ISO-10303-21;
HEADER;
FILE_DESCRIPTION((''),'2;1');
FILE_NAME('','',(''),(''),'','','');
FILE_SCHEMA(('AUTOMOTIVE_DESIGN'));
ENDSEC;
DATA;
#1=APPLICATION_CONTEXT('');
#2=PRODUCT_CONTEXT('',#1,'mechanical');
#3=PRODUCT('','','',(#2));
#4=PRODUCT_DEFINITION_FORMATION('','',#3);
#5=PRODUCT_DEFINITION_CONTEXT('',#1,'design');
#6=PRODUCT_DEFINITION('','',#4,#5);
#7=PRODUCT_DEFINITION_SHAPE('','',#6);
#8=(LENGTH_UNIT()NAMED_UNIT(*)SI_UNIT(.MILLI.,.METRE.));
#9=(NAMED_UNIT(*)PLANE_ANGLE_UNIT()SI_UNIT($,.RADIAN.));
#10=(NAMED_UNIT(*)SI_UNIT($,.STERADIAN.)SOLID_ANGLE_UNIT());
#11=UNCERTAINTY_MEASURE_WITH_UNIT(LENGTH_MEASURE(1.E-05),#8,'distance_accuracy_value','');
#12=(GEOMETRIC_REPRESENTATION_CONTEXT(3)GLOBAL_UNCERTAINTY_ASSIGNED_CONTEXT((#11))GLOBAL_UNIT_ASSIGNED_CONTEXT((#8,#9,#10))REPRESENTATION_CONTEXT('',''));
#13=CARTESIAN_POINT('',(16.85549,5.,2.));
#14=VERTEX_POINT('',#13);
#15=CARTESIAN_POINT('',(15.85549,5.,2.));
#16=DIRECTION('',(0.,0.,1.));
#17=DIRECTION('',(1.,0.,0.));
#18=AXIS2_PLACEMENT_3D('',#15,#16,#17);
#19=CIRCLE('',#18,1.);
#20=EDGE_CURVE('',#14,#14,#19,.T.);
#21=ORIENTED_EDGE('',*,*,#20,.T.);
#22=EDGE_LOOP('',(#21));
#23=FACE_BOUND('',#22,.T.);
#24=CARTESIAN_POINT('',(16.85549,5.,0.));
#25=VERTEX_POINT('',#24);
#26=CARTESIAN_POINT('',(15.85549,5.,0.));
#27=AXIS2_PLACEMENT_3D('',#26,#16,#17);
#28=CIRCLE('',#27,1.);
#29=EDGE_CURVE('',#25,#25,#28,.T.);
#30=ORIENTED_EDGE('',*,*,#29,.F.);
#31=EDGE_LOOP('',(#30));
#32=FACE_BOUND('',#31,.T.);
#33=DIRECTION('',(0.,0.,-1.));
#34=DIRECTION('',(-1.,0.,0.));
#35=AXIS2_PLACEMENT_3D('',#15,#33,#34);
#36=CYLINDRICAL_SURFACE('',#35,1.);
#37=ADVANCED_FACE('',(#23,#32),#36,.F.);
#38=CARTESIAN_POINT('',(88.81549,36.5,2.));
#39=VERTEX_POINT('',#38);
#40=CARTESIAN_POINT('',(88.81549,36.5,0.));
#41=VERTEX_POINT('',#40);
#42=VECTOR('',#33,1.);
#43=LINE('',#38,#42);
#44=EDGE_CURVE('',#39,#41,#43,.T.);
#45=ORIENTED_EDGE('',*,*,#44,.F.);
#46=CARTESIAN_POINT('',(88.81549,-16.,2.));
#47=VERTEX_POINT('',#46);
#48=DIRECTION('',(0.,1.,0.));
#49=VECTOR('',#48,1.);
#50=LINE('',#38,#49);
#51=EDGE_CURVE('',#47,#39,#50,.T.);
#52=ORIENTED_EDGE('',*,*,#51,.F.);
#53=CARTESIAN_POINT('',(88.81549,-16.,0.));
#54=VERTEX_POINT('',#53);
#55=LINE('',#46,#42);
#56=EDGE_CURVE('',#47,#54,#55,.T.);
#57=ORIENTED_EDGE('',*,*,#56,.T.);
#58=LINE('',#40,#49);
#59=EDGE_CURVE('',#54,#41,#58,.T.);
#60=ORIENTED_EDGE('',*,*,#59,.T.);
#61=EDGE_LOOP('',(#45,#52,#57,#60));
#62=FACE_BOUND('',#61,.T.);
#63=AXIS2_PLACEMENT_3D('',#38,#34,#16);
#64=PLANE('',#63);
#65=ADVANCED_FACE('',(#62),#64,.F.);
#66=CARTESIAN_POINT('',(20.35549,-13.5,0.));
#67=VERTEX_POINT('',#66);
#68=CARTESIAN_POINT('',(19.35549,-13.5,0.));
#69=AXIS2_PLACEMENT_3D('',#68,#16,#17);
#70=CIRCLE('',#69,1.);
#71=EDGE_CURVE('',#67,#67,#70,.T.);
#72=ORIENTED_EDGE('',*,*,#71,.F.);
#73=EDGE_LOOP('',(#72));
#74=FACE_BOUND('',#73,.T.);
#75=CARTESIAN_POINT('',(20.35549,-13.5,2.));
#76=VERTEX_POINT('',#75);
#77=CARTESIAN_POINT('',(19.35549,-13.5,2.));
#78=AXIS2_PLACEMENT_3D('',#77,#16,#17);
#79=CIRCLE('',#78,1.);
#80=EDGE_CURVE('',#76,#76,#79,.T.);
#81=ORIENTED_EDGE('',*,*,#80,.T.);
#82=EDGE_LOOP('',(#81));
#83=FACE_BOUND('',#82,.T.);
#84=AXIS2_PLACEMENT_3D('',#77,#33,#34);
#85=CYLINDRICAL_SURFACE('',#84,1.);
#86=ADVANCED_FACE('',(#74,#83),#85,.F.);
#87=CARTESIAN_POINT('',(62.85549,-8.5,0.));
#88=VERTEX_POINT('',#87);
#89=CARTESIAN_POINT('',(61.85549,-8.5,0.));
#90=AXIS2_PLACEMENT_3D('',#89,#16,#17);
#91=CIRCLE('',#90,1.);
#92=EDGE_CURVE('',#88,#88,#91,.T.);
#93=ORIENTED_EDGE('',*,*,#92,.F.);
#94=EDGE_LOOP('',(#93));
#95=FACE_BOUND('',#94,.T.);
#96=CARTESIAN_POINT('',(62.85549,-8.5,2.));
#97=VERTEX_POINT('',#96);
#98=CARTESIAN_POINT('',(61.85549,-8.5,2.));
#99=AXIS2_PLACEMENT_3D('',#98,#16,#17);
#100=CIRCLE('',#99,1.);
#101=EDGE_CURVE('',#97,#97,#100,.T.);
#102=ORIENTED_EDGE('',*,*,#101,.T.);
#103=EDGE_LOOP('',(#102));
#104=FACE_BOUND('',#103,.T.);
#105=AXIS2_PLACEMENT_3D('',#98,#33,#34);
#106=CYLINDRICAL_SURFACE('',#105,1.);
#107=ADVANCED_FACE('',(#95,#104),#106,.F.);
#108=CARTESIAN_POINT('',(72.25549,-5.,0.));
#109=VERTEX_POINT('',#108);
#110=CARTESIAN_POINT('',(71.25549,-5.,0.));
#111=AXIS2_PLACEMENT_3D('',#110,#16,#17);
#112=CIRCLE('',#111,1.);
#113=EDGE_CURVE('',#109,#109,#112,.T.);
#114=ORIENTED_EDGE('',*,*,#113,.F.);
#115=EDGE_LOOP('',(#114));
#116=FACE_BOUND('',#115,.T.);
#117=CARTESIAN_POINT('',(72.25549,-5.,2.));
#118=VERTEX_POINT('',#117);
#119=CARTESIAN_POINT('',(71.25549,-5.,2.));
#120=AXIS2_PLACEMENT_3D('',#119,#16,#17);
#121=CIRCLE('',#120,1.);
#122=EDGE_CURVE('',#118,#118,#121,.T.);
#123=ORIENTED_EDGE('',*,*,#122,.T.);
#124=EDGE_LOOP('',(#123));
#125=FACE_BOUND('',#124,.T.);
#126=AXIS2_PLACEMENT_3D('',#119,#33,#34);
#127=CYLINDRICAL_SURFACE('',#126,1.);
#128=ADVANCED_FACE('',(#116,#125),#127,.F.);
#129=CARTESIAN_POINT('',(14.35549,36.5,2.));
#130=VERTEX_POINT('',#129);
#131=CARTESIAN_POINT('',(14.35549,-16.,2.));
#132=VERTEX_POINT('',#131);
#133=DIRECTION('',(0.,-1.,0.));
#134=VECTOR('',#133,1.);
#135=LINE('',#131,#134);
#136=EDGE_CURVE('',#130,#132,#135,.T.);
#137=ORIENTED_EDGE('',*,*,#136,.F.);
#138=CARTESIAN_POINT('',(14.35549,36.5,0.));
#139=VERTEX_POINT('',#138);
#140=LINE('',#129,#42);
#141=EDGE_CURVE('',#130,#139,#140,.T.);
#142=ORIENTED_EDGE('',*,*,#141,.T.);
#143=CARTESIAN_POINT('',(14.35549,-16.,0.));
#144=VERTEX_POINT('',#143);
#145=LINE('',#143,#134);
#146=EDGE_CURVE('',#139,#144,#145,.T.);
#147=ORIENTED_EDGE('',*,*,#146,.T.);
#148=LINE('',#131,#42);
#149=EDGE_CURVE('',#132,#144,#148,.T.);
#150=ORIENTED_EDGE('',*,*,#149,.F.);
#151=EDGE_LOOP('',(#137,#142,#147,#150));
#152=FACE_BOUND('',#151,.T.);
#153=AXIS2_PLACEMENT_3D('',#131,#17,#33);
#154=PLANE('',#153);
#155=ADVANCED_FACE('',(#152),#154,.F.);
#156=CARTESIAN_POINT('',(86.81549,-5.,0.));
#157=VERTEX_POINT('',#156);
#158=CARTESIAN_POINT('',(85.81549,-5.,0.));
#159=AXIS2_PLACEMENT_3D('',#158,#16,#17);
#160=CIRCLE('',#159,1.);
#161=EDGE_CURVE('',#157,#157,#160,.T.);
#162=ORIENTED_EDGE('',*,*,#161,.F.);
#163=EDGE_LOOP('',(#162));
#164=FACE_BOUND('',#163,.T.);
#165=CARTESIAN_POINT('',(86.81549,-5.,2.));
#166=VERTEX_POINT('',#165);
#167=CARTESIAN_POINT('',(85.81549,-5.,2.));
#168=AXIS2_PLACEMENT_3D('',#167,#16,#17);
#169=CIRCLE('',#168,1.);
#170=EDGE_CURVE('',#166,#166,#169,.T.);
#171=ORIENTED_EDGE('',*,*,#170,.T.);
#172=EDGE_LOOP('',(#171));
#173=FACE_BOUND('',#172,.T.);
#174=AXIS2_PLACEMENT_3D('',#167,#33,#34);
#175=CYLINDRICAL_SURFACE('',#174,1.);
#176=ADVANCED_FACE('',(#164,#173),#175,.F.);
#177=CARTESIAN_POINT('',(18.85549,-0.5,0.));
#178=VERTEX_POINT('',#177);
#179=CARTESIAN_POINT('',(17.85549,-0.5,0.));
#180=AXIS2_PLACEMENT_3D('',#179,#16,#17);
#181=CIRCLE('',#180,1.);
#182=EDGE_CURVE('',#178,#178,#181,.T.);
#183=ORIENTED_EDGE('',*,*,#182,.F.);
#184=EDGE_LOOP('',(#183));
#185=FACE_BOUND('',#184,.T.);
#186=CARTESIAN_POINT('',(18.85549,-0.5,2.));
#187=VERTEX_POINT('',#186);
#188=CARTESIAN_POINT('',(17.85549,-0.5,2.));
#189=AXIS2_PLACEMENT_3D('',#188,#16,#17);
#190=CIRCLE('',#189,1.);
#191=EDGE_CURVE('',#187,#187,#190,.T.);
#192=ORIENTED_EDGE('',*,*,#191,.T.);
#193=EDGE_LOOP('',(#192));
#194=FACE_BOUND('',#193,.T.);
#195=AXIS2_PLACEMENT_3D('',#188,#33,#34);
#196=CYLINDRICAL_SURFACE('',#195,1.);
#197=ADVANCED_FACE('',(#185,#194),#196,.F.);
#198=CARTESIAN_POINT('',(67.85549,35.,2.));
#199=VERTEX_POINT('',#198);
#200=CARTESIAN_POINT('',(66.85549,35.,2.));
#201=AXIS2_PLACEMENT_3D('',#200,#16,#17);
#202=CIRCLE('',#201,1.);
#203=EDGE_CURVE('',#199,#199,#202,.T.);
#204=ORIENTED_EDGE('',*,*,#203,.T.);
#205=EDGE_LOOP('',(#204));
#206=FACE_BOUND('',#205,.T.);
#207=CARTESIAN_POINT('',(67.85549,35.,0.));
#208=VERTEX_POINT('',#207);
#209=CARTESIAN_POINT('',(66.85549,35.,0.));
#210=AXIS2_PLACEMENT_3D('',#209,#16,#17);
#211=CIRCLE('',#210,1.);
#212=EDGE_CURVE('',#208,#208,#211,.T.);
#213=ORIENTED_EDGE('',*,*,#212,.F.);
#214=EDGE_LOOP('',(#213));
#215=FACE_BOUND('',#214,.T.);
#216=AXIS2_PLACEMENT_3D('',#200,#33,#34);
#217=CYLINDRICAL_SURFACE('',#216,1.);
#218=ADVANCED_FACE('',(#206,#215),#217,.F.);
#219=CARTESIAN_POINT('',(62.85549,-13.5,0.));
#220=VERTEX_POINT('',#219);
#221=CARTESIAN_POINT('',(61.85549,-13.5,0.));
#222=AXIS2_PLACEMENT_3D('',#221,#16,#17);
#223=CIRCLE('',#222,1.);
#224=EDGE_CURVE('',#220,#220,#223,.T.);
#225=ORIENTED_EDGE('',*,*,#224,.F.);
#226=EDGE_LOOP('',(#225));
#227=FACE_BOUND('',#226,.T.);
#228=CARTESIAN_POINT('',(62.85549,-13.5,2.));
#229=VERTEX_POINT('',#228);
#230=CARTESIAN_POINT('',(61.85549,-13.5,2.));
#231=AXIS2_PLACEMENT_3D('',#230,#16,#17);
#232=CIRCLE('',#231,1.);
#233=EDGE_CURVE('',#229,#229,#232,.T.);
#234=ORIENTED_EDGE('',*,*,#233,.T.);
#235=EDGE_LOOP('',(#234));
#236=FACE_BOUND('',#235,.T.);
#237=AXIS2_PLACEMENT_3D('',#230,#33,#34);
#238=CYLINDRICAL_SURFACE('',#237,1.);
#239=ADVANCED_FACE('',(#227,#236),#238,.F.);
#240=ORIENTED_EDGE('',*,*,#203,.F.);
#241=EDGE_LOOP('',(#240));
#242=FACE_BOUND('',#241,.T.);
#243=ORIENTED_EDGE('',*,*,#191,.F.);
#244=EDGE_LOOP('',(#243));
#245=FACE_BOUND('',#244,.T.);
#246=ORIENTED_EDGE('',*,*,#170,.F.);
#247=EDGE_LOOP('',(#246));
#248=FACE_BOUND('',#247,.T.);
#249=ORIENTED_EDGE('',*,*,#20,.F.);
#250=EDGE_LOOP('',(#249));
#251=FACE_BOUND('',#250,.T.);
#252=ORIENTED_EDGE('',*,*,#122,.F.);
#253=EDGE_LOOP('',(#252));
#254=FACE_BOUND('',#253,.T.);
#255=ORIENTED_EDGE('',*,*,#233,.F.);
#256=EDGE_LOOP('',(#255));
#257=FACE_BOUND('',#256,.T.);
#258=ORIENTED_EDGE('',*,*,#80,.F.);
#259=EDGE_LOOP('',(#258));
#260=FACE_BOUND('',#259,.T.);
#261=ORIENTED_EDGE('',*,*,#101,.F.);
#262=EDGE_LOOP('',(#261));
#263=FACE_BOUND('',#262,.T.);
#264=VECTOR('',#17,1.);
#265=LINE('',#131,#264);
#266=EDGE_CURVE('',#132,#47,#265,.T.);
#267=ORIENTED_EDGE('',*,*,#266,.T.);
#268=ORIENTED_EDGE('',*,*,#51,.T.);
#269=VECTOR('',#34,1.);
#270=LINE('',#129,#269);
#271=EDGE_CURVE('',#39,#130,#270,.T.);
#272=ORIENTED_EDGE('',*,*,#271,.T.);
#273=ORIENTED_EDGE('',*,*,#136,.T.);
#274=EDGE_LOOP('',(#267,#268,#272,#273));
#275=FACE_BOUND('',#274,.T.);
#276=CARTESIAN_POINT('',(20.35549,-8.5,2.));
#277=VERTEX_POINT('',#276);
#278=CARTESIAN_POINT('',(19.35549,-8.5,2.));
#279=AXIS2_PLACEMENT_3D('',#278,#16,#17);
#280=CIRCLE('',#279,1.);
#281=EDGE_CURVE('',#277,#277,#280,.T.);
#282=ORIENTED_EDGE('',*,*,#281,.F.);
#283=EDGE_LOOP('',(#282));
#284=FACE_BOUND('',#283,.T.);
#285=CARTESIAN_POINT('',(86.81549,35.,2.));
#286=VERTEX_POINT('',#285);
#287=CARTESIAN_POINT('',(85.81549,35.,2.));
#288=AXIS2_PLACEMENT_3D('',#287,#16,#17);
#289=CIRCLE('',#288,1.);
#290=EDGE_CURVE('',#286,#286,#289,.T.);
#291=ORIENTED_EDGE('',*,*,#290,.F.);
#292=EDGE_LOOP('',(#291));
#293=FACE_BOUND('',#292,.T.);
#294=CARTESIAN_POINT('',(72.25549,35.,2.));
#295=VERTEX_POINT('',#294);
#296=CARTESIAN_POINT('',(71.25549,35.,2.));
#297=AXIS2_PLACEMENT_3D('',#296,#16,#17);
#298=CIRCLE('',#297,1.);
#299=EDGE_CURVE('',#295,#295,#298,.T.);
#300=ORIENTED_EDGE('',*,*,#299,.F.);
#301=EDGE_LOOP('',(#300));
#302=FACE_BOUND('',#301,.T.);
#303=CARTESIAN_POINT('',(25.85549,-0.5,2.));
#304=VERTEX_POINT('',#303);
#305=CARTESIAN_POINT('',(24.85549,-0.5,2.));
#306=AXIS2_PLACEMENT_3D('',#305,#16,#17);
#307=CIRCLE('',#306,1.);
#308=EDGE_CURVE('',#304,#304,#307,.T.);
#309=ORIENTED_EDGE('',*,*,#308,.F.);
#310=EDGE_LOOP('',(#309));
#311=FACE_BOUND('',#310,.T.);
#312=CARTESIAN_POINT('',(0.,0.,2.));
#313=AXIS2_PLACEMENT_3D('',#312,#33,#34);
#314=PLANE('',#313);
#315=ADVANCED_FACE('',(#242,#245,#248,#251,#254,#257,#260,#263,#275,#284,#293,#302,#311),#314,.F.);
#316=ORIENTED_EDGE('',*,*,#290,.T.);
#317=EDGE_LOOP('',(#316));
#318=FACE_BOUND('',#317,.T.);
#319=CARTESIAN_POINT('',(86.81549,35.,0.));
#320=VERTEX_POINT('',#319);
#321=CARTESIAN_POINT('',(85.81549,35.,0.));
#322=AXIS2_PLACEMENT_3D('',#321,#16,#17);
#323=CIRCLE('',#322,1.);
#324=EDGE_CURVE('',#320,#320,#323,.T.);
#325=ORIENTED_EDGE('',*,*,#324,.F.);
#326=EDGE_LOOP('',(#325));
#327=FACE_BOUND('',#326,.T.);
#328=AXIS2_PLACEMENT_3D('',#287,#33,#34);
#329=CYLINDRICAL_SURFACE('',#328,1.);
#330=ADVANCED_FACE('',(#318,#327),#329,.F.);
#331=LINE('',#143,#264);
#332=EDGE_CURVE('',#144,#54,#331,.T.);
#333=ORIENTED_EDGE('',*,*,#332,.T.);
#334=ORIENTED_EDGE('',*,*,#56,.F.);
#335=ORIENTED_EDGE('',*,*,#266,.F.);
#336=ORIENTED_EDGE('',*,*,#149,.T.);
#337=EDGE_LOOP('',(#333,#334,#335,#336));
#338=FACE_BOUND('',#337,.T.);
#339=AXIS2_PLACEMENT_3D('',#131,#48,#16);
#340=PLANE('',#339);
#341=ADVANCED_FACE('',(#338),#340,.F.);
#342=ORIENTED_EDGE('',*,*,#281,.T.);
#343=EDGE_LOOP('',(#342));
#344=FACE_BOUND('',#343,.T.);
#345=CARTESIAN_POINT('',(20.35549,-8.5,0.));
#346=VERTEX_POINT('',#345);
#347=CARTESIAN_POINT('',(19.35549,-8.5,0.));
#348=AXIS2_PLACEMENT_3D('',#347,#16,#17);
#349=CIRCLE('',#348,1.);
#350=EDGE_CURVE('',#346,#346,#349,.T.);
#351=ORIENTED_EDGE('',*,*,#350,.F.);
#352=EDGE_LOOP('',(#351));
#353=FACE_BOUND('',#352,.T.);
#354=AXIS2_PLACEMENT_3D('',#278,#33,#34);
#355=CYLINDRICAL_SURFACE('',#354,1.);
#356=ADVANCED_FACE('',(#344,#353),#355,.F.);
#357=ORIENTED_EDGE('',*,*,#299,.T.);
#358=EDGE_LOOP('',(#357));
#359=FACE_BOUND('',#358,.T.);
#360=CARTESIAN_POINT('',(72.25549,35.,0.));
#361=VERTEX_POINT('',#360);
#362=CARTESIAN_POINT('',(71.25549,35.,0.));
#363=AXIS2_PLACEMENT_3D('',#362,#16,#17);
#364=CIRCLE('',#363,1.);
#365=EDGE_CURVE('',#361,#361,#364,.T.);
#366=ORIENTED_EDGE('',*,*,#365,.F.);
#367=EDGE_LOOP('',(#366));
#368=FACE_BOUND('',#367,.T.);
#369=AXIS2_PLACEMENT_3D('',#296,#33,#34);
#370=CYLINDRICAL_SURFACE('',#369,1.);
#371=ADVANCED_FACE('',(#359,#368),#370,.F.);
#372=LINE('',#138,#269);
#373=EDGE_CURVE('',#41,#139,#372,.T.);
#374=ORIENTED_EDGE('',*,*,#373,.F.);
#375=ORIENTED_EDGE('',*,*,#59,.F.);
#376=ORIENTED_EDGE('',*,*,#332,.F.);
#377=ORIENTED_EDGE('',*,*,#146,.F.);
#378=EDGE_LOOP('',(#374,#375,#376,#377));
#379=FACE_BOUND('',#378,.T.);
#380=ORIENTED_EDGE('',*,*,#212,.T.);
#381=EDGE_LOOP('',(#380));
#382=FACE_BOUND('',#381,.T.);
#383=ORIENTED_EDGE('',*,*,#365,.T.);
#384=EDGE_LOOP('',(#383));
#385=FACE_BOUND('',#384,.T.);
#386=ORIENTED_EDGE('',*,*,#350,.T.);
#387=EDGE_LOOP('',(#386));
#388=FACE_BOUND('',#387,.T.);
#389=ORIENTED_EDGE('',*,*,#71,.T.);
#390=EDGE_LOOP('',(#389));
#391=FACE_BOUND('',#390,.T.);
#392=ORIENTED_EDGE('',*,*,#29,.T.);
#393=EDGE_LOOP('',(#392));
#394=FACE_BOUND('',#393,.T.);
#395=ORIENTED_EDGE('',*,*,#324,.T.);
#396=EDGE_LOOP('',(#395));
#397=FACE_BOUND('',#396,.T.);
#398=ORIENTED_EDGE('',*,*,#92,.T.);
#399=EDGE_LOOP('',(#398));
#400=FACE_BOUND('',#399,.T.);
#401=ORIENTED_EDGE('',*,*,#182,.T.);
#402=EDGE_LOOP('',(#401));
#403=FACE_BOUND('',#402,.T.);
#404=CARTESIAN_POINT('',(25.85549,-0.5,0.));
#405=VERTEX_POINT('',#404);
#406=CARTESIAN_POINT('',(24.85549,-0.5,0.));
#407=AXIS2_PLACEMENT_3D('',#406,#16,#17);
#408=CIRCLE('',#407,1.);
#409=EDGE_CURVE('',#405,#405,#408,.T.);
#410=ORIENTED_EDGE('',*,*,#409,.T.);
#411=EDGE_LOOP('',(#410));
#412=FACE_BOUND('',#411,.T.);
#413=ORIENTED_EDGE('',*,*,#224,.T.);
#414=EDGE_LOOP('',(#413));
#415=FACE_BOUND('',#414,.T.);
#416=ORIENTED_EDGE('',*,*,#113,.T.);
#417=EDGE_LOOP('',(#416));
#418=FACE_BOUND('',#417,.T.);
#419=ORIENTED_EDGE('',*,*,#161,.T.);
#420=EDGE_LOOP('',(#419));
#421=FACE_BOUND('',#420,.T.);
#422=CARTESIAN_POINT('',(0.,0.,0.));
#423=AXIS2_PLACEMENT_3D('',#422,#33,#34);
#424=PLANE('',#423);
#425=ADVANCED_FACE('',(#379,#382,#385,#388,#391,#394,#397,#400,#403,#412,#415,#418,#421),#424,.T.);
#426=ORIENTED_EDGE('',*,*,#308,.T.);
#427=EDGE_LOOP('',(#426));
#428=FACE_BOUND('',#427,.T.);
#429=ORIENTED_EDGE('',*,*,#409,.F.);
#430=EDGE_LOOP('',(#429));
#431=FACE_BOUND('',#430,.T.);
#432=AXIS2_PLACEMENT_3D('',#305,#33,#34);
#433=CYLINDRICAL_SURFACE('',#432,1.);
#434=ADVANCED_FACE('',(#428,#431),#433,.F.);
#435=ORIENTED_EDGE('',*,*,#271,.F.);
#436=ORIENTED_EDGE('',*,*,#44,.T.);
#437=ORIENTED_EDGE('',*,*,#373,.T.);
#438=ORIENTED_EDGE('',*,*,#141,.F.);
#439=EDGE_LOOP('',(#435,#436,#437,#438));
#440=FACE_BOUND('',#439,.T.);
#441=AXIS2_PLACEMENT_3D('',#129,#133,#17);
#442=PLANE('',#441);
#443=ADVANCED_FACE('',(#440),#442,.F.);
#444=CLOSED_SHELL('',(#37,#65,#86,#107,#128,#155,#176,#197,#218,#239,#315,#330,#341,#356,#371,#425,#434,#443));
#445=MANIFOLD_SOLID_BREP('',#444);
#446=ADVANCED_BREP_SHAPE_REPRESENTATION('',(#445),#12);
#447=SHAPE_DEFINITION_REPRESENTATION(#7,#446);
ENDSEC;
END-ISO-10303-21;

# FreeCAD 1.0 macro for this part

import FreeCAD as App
import Part
import Sketcher
from FreeCAD import Vector


def add_polygon(sketch, points):
    """Adds a closed chain of lines whose ends are joined by coincident constraints."""
    first, n = sketch.GeometryCount, len(points)
    for a, b in zip(points, points[1:] + points[:1]):
        sketch.addGeometry(Part.LineSegment(App.Vector(*a, 0), App.Vector(*b, 0)), False)
    for i in range(n):
        sketch.addConstraint(Sketcher.Constraint("Coincident", first + i, 2, first + (i + 1) % n, 1))

doc = App.newDocument("Part")
body = doc.addObject("PartDesign::Body", "Body")

sketch1 = body.newObject("Sketcher::SketchObject", "Sketch")
sketch1.AttachmentSupport = (doc.getObject("XY_Plane"), [""])
sketch1.MapMode = "FlatFace"
add_polygon(sketch1, [(14.4, 36.5), (14.4, -16), (88.8, -16), (88.8, 36.5)])
sketch1.addGeometry(Part.Circle(Vector(19.4, -13.5, 0), Vector(0, 0, 1), 1), False)
sketch1.addGeometry(Part.Circle(Vector(19.4, -8.5, 0), Vector(0, 0, 1), 1), False)
sketch1.addGeometry(Part.Circle(Vector(17.9, -0.5, 0), Vector(0, 0, 1), 1), False)
sketch1.addGeometry(Part.Circle(Vector(24.9, -0.5, 0), Vector(0, 0, 1), 1), False)
sketch1.addGeometry(Part.Circle(Vector(15.9, 5, 0), Vector(0, 0, 1), 1), False)
sketch1.addGeometry(Part.Circle(Vector(61.9, -13.5, 0), Vector(0, 0, 1), 1), False)
sketch1.addGeometry(Part.Circle(Vector(61.9, -8.5, 0), Vector(0, 0, 1), 1), False)
sketch1.addGeometry(Part.Circle(Vector(71.3, -5, 0), Vector(0, 0, 1), 1), False)
sketch1.addGeometry(Part.Circle(Vector(85.8, -5, 0), Vector(0, 0, 1), 1), False)
sketch1.addGeometry(Part.Circle(Vector(66.9, 35, 0), Vector(0, 0, 1), 1), False)
sketch1.addGeometry(Part.Circle(Vector(71.3, 35, 0), Vector(0, 0, 1), 1), False)
sketch1.addGeometry(Part.Circle(Vector(85.8, 35, 0), Vector(0, 0, 1), 1), False)
sketch1.addConstraint([
    Sketcher.Constraint("Vertical", 0),
    Sketcher.Constraint("Horizontal", 1),
    Sketcher.Constraint("Vertical", 2),
    Sketcher.Constraint("Horizontal", 3),
    Sketcher.Constraint("Equal", 4, 5),
    Sketcher.Constraint("Equal", 5, 6),
    Sketcher.Constraint("Equal", 6, 7),
    Sketcher.Constraint("Equal", 7, 8),
    Sketcher.Constraint("Equal", 8, 9),
    Sketcher.Constraint("Equal", 9, 10),
    Sketcher.Constraint("Equal", 10, 11),
    Sketcher.Constraint("Equal", 11, 12),
    Sketcher.Constraint("Equal", 12, 13),
    Sketcher.Constraint("Equal", 13, 14),
    Sketcher.Constraint("Equal", 14, 15),
    Sketcher.Constraint("Horizontal", 6, 3, 7, 3),
    Sketcher.Constraint("Horizontal", 4, 3, 9, 3),
    Sketcher.Constraint("Horizontal", 5, 3, 10, 3),
    Sketcher.Constraint("Horizontal", 11, 3, 12, 3),
    Sketcher.Constraint("Horizontal", 13, 3, 14, 3),
    Sketcher.Constraint("Horizontal", 14, 3, 15, 3),
    Sketcher.Constraint("Vertical", 4, 3, 5, 3),
    Sketcher.Constraint("Vertical", 9, 3, 10, 3),
    Sketcher.Constraint("Vertical", 11, 3, 14, 3),
    Sketcher.Constraint("Vertical", 12, 3, 15, 3),
    Sketcher.Constraint("Diameter", 4, 2.0),
    Sketcher.Constraint("DistanceY", 0, 2, 0, 1, 52.5),
    Sketcher.Constraint("DistanceY", -1, 1, 8, 3, 5.0),
    Sketcher.Constraint("DistanceY", 11, 3, -1, 1, 5.0),
    Sketcher.Constraint("DistanceY", -1, 1, 13, 3, 35.0),
    Sketcher.Constraint("DistanceY", 0, 2, -1, 1, 16.0),
    Sketcher.Constraint("DistanceY", 4, 3, 5, 3, 5.0),
    Sketcher.Constraint("DistanceY", 5, 3, 6, 3, 8.0),
    Sketcher.Constraint("DistanceX", 6, 3, 7, 3, 7.0),
    Sketcher.Constraint("DistanceX", 8, 3, 6, 3, 2.0),
    Sketcher.Constraint("DistanceX", 7, 3, 9, 3, 37.0),
    Sketcher.Constraint("DistanceX", 10, 3, 13, 3, 5.0),
    Sketcher.Constraint("DistanceX", 0, 2, 4, 3, 5.0),
    Sketcher.Constraint("DistanceX", 12, 3, 1, 2, 3.0),
    Sketcher.Constraint("DistanceY", 6, 3, 3, 2, 37.0),
    Sketcher.Constraint("DistanceX", 1, 1, 1, 2, 74.46),
    Sketcher.Constraint("DistanceX", 6, 3, 5, 3, 1.5),
    Sketcher.Constraint("DistanceX", 10, 3, 11, 3, 9.4),
    Sketcher.Constraint("DistanceX", -1, 1, 4, 3, 19.35549),
])
pad1 = body.newObject("PartDesign::Pad", "Pad")
pad1.Profile = sketch1
pad1.Length = 2

doc.recompute()
